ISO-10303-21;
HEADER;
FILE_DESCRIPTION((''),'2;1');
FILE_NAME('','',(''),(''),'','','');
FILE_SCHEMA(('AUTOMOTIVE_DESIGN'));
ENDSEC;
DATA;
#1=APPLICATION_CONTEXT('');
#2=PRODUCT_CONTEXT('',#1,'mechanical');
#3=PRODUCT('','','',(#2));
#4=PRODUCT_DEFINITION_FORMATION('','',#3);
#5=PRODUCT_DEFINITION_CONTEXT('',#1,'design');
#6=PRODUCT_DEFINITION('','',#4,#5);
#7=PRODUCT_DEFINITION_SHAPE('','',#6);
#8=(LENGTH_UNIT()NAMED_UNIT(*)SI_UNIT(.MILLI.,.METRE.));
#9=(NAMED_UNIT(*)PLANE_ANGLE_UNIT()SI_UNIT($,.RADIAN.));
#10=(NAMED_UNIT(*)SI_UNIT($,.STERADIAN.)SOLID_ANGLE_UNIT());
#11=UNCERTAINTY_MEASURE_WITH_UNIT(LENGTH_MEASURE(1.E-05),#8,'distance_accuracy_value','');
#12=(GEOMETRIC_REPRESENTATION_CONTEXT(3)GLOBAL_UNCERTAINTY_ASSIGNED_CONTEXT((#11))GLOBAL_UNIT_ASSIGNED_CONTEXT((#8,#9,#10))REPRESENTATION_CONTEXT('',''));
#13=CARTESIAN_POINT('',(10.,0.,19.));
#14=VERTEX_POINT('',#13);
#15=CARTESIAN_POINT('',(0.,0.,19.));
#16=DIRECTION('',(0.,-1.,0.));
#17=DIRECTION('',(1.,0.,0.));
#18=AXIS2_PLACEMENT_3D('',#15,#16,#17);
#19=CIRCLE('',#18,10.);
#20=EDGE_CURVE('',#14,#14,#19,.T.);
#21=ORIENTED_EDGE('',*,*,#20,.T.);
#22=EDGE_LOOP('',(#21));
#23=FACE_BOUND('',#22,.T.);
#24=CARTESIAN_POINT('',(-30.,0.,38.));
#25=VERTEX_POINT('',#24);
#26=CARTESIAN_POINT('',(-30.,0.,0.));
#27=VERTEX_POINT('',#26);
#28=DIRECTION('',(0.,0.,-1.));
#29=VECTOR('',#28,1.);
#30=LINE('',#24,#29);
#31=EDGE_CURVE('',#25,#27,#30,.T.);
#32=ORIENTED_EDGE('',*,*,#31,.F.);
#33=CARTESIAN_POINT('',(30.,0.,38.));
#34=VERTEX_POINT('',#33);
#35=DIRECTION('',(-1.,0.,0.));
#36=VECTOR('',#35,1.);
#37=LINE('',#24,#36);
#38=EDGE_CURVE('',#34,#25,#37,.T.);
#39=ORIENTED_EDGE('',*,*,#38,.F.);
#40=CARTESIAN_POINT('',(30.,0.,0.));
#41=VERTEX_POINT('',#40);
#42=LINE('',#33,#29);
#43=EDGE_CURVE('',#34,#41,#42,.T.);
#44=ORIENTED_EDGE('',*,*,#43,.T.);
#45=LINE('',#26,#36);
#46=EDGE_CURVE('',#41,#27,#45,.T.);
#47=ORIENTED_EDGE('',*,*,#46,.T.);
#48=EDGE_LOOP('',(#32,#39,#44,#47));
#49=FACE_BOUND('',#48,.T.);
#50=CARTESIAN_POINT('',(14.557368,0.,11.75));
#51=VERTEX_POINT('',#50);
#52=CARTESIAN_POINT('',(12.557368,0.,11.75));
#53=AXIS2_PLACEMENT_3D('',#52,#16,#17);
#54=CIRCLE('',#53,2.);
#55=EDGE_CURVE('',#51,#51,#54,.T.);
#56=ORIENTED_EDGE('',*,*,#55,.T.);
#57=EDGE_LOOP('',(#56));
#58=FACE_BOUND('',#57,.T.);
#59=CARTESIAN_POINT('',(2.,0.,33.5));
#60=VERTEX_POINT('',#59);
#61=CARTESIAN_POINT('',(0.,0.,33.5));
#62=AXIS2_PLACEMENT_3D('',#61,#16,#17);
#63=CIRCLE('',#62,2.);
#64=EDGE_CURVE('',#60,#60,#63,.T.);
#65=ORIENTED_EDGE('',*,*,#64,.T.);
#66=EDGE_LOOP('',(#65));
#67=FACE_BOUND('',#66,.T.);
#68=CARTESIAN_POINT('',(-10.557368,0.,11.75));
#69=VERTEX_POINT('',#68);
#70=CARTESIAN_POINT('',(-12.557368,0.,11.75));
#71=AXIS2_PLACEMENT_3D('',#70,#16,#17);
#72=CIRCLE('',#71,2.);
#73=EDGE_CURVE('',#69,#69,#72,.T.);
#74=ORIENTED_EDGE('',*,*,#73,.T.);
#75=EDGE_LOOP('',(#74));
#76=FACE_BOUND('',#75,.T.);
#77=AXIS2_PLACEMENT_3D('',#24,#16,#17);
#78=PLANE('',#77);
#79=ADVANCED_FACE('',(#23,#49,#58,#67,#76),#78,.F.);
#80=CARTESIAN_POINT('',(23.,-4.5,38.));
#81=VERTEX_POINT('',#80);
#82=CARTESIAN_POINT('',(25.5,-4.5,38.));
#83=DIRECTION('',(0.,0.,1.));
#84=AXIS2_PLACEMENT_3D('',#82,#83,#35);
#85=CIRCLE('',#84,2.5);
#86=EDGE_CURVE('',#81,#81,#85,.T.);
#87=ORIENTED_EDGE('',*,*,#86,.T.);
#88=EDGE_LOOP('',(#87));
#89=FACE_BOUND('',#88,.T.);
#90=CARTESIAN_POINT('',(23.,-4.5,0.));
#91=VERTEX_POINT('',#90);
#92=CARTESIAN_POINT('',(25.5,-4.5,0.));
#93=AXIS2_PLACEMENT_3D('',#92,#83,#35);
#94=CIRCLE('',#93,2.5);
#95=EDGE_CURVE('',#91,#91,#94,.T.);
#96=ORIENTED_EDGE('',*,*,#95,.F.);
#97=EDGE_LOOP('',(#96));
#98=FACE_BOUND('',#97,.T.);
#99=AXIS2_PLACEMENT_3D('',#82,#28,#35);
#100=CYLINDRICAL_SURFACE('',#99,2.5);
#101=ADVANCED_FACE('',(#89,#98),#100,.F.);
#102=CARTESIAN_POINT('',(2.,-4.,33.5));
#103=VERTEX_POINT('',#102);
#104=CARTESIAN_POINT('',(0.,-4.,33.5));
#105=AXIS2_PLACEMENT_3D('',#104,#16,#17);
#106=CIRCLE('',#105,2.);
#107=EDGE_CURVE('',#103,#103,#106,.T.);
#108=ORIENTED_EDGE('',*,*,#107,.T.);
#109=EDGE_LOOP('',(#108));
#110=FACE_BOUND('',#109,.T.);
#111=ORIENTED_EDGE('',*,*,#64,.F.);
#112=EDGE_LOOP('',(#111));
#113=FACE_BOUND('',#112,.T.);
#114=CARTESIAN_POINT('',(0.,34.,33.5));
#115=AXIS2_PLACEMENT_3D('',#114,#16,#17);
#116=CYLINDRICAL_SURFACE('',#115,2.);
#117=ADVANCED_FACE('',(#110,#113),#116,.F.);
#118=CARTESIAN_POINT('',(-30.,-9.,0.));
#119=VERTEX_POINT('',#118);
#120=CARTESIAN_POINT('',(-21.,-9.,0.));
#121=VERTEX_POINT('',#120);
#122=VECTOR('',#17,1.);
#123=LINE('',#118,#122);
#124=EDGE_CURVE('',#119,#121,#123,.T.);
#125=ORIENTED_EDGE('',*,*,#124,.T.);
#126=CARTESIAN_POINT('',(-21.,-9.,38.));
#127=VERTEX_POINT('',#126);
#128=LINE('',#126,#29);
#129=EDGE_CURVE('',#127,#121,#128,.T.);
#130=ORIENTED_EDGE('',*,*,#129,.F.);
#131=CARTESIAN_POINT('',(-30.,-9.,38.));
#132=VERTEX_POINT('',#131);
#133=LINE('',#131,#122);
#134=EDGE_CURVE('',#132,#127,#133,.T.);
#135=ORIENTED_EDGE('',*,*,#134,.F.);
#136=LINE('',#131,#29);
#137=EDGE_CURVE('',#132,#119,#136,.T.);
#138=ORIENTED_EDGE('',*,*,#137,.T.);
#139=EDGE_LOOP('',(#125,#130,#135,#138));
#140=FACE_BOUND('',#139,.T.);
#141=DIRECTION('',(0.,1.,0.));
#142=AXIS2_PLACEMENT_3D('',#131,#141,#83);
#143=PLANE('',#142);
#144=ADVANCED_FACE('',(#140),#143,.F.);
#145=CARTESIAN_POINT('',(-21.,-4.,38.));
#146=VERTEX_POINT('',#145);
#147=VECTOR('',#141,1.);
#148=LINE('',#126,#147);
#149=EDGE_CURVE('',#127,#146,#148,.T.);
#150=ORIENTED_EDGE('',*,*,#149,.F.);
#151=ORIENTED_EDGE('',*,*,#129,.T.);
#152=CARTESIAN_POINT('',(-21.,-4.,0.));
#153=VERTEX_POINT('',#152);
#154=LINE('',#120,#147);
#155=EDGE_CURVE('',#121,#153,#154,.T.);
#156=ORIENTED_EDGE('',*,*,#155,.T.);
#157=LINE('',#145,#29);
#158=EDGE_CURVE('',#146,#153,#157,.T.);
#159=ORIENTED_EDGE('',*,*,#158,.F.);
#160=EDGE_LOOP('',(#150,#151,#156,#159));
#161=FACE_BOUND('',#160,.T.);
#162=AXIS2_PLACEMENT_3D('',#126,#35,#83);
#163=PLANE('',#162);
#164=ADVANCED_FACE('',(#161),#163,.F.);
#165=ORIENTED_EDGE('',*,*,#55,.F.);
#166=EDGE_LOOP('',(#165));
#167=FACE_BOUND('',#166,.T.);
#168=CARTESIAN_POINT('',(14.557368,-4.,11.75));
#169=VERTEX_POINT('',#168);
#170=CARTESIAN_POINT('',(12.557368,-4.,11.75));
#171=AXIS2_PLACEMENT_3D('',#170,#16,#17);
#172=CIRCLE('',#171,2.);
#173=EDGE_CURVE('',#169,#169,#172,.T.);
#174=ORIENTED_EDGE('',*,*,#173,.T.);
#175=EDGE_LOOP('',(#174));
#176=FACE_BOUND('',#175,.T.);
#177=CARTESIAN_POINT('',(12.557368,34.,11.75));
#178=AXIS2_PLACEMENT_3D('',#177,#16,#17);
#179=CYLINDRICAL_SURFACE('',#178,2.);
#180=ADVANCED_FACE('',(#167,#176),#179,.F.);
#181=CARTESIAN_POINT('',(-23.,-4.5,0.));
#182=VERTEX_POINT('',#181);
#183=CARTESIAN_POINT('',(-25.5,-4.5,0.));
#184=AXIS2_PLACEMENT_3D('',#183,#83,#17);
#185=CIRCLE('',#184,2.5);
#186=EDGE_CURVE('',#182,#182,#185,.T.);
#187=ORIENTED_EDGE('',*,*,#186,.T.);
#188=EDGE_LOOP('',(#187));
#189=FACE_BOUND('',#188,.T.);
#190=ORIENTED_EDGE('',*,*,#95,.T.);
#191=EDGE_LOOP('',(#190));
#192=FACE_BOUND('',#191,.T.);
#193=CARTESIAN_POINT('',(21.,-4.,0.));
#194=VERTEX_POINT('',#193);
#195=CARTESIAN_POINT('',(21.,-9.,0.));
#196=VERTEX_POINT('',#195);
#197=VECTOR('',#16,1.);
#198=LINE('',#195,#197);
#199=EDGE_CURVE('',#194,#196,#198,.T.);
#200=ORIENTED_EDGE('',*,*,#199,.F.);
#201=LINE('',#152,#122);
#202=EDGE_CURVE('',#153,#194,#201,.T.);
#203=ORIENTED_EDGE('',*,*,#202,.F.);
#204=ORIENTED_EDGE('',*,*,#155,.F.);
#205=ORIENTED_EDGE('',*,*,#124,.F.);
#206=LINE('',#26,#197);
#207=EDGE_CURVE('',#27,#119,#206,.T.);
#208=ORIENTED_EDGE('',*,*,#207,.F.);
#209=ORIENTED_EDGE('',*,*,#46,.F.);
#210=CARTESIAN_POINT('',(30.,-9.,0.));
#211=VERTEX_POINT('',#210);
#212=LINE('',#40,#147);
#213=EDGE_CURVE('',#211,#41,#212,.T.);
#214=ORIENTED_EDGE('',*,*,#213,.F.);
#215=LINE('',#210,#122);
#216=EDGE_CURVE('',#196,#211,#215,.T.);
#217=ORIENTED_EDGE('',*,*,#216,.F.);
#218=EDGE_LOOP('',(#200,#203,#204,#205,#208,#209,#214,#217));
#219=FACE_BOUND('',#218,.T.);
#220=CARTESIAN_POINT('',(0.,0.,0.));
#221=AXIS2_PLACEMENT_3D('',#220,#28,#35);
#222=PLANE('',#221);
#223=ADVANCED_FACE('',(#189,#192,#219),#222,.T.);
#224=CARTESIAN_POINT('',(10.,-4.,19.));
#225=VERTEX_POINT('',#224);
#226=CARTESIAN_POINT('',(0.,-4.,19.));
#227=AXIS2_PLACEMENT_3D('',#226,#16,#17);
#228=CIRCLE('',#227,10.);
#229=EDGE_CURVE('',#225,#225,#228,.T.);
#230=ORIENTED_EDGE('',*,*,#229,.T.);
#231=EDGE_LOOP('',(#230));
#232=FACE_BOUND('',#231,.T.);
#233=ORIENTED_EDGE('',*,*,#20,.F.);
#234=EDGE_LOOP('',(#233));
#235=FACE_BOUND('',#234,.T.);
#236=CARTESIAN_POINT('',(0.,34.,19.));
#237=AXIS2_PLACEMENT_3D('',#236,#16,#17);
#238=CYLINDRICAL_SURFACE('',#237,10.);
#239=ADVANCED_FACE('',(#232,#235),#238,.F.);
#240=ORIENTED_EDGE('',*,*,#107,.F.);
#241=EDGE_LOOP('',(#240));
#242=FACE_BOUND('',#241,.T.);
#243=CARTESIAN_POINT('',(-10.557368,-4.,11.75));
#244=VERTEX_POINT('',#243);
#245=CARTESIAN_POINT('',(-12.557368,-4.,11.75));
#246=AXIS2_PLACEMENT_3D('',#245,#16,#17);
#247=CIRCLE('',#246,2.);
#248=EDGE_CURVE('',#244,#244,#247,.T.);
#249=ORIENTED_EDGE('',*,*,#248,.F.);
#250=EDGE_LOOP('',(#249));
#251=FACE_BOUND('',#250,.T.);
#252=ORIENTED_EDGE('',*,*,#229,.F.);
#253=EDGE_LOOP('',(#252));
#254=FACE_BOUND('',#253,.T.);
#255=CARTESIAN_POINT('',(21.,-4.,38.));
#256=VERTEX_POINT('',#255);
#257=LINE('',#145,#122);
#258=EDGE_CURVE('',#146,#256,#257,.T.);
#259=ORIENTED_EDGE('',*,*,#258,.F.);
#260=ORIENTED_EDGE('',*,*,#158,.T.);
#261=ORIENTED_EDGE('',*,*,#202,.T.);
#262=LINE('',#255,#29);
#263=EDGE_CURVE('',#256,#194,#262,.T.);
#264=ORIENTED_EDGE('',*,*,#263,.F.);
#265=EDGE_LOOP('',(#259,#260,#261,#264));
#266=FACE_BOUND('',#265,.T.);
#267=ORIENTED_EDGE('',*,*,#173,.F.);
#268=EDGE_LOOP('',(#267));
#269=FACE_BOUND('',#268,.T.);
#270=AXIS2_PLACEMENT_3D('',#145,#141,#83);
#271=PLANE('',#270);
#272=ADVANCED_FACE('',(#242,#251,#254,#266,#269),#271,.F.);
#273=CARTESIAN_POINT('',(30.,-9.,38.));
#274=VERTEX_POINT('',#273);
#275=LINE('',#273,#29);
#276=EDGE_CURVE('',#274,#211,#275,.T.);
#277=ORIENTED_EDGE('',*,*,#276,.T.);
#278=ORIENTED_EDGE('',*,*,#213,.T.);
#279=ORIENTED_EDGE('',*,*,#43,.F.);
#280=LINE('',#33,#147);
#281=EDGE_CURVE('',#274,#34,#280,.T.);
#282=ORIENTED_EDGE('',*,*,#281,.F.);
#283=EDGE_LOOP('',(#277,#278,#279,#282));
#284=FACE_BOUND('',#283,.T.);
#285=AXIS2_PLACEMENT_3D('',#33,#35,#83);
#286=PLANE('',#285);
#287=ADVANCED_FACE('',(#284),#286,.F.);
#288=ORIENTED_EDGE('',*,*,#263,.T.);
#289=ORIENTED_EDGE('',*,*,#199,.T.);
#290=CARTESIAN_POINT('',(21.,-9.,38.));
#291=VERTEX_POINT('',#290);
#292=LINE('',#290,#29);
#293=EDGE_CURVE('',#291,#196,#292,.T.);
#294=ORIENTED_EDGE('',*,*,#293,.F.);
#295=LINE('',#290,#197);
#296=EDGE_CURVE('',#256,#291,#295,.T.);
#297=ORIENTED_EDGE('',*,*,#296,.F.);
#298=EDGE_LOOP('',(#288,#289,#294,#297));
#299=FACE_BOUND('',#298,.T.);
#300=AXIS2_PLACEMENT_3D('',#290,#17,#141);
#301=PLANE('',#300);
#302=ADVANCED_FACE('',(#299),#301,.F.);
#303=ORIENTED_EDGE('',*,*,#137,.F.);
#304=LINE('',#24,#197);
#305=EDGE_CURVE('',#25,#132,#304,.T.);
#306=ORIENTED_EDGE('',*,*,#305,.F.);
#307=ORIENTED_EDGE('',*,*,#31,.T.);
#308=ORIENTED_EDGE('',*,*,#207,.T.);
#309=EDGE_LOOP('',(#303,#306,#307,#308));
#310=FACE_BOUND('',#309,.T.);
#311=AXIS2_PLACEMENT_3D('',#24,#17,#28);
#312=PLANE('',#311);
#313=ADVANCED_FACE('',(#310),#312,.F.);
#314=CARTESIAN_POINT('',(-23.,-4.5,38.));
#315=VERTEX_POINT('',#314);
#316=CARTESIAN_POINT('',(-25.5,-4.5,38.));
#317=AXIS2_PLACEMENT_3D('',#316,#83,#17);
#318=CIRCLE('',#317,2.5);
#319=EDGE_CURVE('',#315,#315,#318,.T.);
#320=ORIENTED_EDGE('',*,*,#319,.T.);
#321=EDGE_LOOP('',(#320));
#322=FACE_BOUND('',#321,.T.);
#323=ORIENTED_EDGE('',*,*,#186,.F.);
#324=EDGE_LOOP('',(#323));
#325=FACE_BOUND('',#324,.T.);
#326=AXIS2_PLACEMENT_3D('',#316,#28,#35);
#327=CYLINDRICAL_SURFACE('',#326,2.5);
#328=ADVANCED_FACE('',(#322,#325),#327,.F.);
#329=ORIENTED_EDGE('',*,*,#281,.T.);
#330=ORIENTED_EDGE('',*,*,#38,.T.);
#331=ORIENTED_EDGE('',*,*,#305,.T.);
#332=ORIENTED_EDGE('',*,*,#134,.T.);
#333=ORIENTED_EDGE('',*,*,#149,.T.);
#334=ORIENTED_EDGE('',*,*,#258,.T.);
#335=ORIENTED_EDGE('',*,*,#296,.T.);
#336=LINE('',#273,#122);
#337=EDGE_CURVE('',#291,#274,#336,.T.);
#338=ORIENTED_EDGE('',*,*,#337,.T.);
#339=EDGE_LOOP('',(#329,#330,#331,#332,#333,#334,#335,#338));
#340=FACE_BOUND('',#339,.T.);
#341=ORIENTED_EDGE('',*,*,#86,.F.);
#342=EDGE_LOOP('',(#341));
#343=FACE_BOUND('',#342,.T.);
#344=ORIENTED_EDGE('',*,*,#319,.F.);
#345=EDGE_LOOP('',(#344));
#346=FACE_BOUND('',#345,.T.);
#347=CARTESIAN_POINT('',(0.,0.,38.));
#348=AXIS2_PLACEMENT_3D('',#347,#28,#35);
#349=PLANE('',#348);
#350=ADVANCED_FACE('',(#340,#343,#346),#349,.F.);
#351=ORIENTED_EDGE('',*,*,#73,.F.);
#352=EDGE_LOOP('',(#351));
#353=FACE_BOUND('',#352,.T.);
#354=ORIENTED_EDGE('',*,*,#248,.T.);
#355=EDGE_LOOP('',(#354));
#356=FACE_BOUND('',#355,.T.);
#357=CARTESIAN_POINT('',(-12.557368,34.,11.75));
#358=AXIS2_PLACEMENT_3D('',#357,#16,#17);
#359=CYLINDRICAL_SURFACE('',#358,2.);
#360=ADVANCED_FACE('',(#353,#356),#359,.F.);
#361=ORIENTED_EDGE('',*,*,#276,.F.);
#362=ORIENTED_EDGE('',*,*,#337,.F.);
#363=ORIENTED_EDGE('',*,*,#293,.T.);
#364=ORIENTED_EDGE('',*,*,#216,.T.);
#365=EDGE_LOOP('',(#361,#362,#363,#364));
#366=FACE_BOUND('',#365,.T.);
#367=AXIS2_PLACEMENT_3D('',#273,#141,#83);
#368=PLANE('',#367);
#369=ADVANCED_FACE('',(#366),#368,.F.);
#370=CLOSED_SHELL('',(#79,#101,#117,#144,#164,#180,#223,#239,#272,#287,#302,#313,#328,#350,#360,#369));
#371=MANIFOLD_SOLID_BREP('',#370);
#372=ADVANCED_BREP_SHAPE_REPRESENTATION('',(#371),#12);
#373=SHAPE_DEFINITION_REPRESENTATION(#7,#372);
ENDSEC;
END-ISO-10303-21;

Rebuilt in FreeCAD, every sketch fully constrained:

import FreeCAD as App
import Part
import Sketcher

V = App.Vector
Q = App.Units.Quantity

doc = App.newDocument("Part")
params = doc.addObject("Spreadsheet::Sheet", "Params")
for row, (alias, value) in enumerate([
    ("sketch1_diameter", "5 mm"),
    ("sketch1_width", "9 mm"),
    ("sketch1_width2", "42 mm"),
    ("sketch1_height", "5 mm"),
    ("pad1_length", "38 mm"),
    ("sketch2_diameter", "20 mm"),
    ("sketch2_diameter2", "4 mm"),
    ("pocket1_length", "38 mm"),
], start=1):
    params.set(f"A{row}", alias)
    params.set(f"B{row}", "=" + value)
    params.setAlias(f"B{row}", alias)

body = doc.addObject("PartDesign::Body", "Body")

sketch1 = body.newObject("Sketcher::SketchObject", "Sketch")
sketch1.AttachmentSupport = (doc.getObject("XY_Plane"), [""])
sketch1.MapMode = "FlatFace"
sketch1.addGeometry([
    Part.LineSegment(V(-30, 0, 0), V(-30, -9, 0)),
    Part.LineSegment(V(-30, -9, 0), V(-21, -9, 0)),
    Part.LineSegment(V(-21, -9, 0), V(-21, -4, 0)),
    Part.LineSegment(V(-21, -4, 0), V(21, -4, 0)),
    Part.LineSegment(V(21, -4, 0), V(21, -9, 0)),
    Part.LineSegment(V(21, -9, 0), V(30, -9, 0)),
    Part.LineSegment(V(30, -9, 0), V(30, 0, 0)),
    Part.LineSegment(V(30, 0, 0), V(-30, 0, 0)),
    Part.Circle(V(-25.5, -4.5, 0), V(0, 0, 1), 2.5),
    Part.Circle(V(25.5, -4.5, 0), V(0, 0, 1), 2.5),
], False)
sketch1.addConstraint([
    Sketcher.Constraint("Coincident", 0, 2, 1, 1),
    Sketcher.Constraint("Coincident", 1, 2, 2, 1),
    Sketcher.Constraint("Coincident", 2, 2, 3, 1),
    Sketcher.Constraint("Coincident", 3, 2, 4, 1),
    Sketcher.Constraint("Coincident", 4, 2, 5, 1),
    Sketcher.Constraint("Coincident", 5, 2, 6, 1),
    Sketcher.Constraint("Coincident", 6, 2, 7, 1),
    Sketcher.Constraint("Coincident", 7, 2, 0, 1),
    Sketcher.Constraint("Vertical", 0),
    Sketcher.Constraint("Horizontal", 1),
    Sketcher.Constraint("Vertical", 2),
    Sketcher.Constraint("Horizontal", 3),
    Sketcher.Constraint("Vertical", 4),
    Sketcher.Constraint("Horizontal", 5),
    Sketcher.Constraint("Vertical", 6),
    Sketcher.Constraint("Horizontal", 7),
    Sketcher.Constraint("Equal", 8, 9),
    Sketcher.Constraint("Symmetric", 6, 2, 7, 2, -1, 1),
    Sketcher.Constraint("Symmetric", 8, 3, 9, 3, -2),
    Sketcher.Constraint("Symmetric", 1, 2, 4, 2, -2),
    Sketcher.Constraint("Equal", 5, 0),
    Sketcher.Constraint("Diameter", 8, Q("5 mm")),
    Sketcher.Constraint("DistanceX", 1, 1, 1, 2, Q("9 mm")),
    Sketcher.Constraint("DistanceX", 3, 1, 3, 2, Q("42 mm")),
    Sketcher.Constraint("DistanceY", 2, 1, 2, 2, Q("5 mm")),
    Sketcher.Constraint("DistanceX", 8, 3, 9, 3, Q("51 mm")),
    Sketcher.Constraint("DistanceY", 8, 3, -1, 1, Q("4.5 mm")),
])
sketch1.setExpression("Constraints[21]", "Params.sketch1_diameter")
sketch1.setExpression("Constraints[22]", "Params.sketch1_width")
sketch1.setExpression("Constraints[23]", "Params.sketch1_width2")
sketch1.setExpression("Constraints[24]", "Params.sketch1_height")
pad1 = body.newObject("PartDesign::Pad", "Pad")
pad1.Profile = sketch1
pad1.setExpression("Length", "Params.pad1_length")

sketch2 = body.newObject("Sketcher::SketchObject", "Sketch001")
sketch2.AttachmentSupport = (doc.getObject("XZ_Plane"), [""])
sketch2.MapMode = "FlatFace"
sketch2.AttachmentOffset = App.Placement(V(0, 0, 4), App.Rotation())
sketch2.addGeometry([
    Part.Circle(V(0, 19, 0), V(0, 0, 1), 10),
    Part.Circle(V(0, 33.5, 0), V(0, 0, 1), 2),
    Part.Circle(V(12.557368, 11.75, 0), V(0, 0, 1), 2),
    Part.Circle(V(-12.557368, 11.75, 0), V(0, 0, 1), 2),
], False)
sketch2.addConstraint([
    Sketcher.Constraint("Equal", 1, 2),
    Sketcher.Constraint("Equal", 2, 3),
    Sketcher.Constraint("Symmetric", 2, 3, 3, 3, -2),
    Sketcher.Constraint("PointOnObject", 0, 3, -2),
    Sketcher.Constraint("PointOnObject", 1, 3, -2),
    Sketcher.Constraint("Diameter", 0, Q("20 mm")),
    Sketcher.Constraint("Diameter", 1, Q("4 mm")),
    Sketcher.Constraint("DistanceY", -1, 1, 0, 3, Q("19 mm")),
    Sketcher.Constraint("DistanceY", -1, 1, 1, 3, Q("33.5 mm")),
    Sketcher.Constraint("DistanceY", -1, 1, 2, 3, Q("11.75 mm")),
    Sketcher.Constraint("DistanceX", -1, 1, 2, 3, Q("12.557368 mm")),
])
sketch2.setExpression("Constraints[5]", "Params.sketch2_diameter")
sketch2.setExpression("Constraints[6]", "Params.sketch2_diameter2")
pocket1 = body.newObject("PartDesign::Pocket", "Pocket")
pocket1.Profile = sketch2
pocket1.setExpression("Length", "Params.pocket1_length")

doc.recompute()
